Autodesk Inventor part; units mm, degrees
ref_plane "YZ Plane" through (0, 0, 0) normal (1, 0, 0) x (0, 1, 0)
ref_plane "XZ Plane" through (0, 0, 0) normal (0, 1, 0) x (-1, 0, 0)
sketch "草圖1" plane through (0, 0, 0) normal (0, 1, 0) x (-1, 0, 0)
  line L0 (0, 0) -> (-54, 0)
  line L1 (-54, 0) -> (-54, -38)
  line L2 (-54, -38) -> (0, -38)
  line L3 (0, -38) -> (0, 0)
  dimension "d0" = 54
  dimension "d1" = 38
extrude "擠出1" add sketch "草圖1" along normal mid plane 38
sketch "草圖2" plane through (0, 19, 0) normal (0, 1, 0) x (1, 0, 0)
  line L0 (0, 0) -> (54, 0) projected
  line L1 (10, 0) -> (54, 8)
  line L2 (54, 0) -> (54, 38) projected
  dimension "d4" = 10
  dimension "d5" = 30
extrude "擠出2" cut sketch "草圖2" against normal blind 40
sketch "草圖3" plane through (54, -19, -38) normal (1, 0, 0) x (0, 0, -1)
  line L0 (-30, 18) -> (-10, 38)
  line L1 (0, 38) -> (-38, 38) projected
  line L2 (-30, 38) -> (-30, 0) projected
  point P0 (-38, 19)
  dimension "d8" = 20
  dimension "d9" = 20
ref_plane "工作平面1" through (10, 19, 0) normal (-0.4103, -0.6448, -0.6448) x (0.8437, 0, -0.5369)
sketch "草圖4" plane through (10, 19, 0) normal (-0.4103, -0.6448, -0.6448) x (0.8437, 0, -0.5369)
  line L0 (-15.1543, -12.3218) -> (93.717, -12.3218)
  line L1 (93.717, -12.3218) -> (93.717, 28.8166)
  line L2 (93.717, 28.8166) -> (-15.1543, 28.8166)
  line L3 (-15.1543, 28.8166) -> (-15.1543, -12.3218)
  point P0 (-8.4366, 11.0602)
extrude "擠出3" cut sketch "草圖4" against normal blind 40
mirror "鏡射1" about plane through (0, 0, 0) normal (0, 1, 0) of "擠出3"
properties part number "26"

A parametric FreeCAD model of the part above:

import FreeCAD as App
import Part
import Sketcher

V = App.Vector
Q = App.Units.Quantity


def add_polygon(sketch, points):
    """Adds a closed chain of lines whose ends are joined by coincident constraints."""
    first, n = sketch.GeometryCount, len(points)
    for a, b in zip(points, points[1:] + points[:1]):
        sketch.addGeometry(Part.LineSegment(App.Vector(*a, 0), App.Vector(*b, 0)), False)
    for i in range(n):
        sketch.addConstraint(Sketcher.Constraint("Coincident", first + i, 2, first + (i + 1) % n, 1))

doc = App.newDocument("Part")
body = doc.addObject("PartDesign::Body", "Body")

# Sketch on XZ plane
sketch1 = body.newObject("Sketcher::SketchObject", "Sketch")
sketch1.AttachmentSupport = (doc.getObject("XZ_Plane"), [""])
sketch1.MapMode = "FlatFace"
add_polygon(sketch1, [(0, -38), (0, 0), (54, 0), (54, -38)])  # lines 0-3
sketch1.addConstraint([
    Sketcher.Constraint("Vertical", 0),
    Sketcher.Constraint("Horizontal", 1),
    Sketcher.Constraint("Vertical", 2),
    Sketcher.Constraint("Horizontal", 3),
    Sketcher.Constraint("Coincident", 0, 2, -1, 1),
    Sketcher.Constraint("DistanceX", 1, 1, 1, 2, Q("54 mm")),
    Sketcher.Constraint("DistanceY", 0, 1, 0, 2, Q("38 mm")),
])
pad1 = body.newObject("PartDesign::Pad", "Pad")
pad1.Profile = sketch1
pad1.Length = 38
pad1.Midplane = True

# Sketch on XZ plane
sketch2 = body.newObject("Sketcher::SketchObject", "Sketch001")
sketch2.AttachmentSupport = (doc.getObject("XZ_Plane"), [""])
sketch2.MapMode = "FlatFace"
sketch2.AttachmentOffset = App.Placement(V(0, 0, -19), App.Rotation())
add_polygon(sketch2, [(54, -8), (10, 0), (54, 0)])  # lines 0-2
sketch2.addConstraint([
    Sketcher.Constraint("Horizontal", 1),
    Sketcher.Constraint("Vertical", 2),
    Sketcher.Constraint("PointOnObject", 0, 2, -1),
    Sketcher.Constraint("DistanceX", -1, 1, 0, 2, Q("10 mm")),
    Sketcher.Constraint("DistanceX", 1, 1, 1, 2, Q("44 mm")),
    Sketcher.Constraint("DistanceY", 2, 2, 2, 1, Q("8 mm")),
])
pocket1 = body.newObject("PartDesign::Pocket", "Pocket")
pocket1.Profile = sketch2
pocket1.Length = 40
pocket1.Reversed = True

# Sketch on an angled plane
sketch3 = body.newObject("Sketcher::SketchObject", "Sketch002")
sketch3.Placement = App.Placement(V(10, 19, 0), App.Rotation(V(0.84367093, 0.000014838, -0.536860654), V(0.34619806, -0.764318738, 0.544025524), V(-0.410324585, -0.644838637, -0.644838637), "ZXY"))
add_polygon(sketch3, [(-15.1543, 28.8166), (-15.1543, -12.3218), (93.717, -12.3218), (93.717, 28.8166)])  # lines 0-3
sketch3.addConstraint([
    Sketcher.Constraint("Vertical", 0),
    Sketcher.Constraint("Horizontal", 1),
    Sketcher.Constraint("Vertical", 2),
    Sketcher.Constraint("Horizontal", 3),
    Sketcher.Constraint("DistanceX", 1, 1, 1, 2, Q("108.8713 mm")),
    Sketcher.Constraint("DistanceY", 0, 2, 0, 1, Q("41.1384 mm")),
    Sketcher.Constraint("DistanceX", -1, 1, 1, 2, Q("93.717 mm")),
    Sketcher.Constraint("DistanceY", 0, 2, -1, 1, Q("12.3218 mm")),
])
pocket2 = body.newObject("PartDesign::Pocket", "Pocket001")
pocket2.Profile = sketch3
pocket2.Length = 40
doc.recompute()

mirrored = body.newObject("PartDesign::Mirrored", "Mirrored")
mirrored.Originals = [pocket2]
mirrored.MirrorPlane = (doc.getObject("XZ_Plane"), [""])
body.Tip = mirrored

doc.recompute()
